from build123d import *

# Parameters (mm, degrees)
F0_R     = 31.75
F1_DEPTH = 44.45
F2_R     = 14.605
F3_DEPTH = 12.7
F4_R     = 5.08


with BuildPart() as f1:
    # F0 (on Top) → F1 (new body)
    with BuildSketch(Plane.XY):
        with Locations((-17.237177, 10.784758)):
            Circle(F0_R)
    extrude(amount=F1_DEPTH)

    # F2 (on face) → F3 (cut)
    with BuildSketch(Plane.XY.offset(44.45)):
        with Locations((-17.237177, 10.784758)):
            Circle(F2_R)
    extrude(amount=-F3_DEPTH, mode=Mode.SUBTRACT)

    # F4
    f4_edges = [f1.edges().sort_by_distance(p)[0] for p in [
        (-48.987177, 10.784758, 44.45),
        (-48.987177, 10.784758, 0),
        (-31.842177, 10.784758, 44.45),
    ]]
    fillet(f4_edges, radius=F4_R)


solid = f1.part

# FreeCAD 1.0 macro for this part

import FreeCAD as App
import Part
import Sketcher

V = App.Vector
Q = App.Units.Quantity


def edges_at(feature, points):
    """Names of the edges that pass closest to the given points."""
    edges = feature.Shape.Edges
    near = lambda p: min(range(len(edges)), key=lambda i: edges[i].distToShape(Part.Vertex(*p))[0])
    return sorted({f"Edge{near(p) + 1}" for p in points})

doc = App.newDocument("Part")
body = doc.addObject("PartDesign::Body", "Body")

sketch1 = body.newObject("Sketcher::SketchObject", "Sketch")
sketch1.AttachmentSupport = (doc.getObject("XY_Plane"), [""])
sketch1.MapMode = "FlatFace"
sketch1.addGeometry(Part.Circle(V(-17.237177, 10.784758, 0), V(0, 0, 1), 31.75), False)
sketch1.addConstraint(Sketcher.Constraint("Diameter", 0, Q("2.5 in")))
sketch1.addConstraint(Sketcher.Constraint("DistanceX", 0, 3, -1, 1, 17.237177))
sketch1.addConstraint(Sketcher.Constraint("DistanceY", -1, 1, 0, 3, 10.784758))
pad1 = body.newObject("PartDesign::Pad", "Pad")
pad1.Profile = sketch1
pad1.Length = Q("1.75 in")

sketch2 = body.newObject("Sketcher::SketchObject", "Sketch001")
sketch2.AttachmentSupport = (doc.getObject("XY_Plane"), [""])
sketch2.MapMode = "FlatFace"
sketch2.AttachmentOffset = App.Placement(V(0, 0, 1.75 * 25.4), App.Rotation())
sketch2.addGeometry(Part.Circle(V(-17.237177, 10.784758, 0), V(0, 0, 1), 14.605), False)
sketch2.addConstraint(Sketcher.Constraint("Diameter", 0, Q("1.15 in")))
sketch2.addConstraint(Sketcher.Constraint("DistanceX", 0, 3, -1, 1, 17.237177))
sketch2.addConstraint(Sketcher.Constraint("DistanceY", -1, 1, 0, 3, 10.784758))
pocket1 = body.newObject("PartDesign::Pocket", "Pocket")
pocket1.Profile = sketch2
pocket1.Length = Q("0.5 in")
doc.recompute()

fillet = body.newObject("PartDesign::Fillet", "Fillet")
fillet.Base = (pocket1, edges_at(pocket1, [(-48.987, 10.785, 44.45), (-48.987, 10.785, 0), (-31.842, 10.785, 44.45)]))
fillet.Radius = Q("0.2 in")

doc.recompute()
